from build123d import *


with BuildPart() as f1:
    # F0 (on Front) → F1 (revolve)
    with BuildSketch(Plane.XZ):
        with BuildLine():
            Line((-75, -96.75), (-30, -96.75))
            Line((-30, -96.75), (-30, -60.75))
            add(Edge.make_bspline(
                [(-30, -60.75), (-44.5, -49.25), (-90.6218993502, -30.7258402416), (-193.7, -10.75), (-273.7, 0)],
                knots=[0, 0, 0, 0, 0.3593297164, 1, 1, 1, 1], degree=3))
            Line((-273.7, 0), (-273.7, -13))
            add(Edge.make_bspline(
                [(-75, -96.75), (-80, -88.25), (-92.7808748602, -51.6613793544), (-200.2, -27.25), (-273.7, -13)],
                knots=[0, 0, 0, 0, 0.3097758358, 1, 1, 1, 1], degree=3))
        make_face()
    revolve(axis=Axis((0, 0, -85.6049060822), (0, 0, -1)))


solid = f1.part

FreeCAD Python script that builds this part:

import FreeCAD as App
import Part
import Sketcher

doc = App.newDocument("Part")
body = doc.addObject("PartDesign::Body", "Body")

sketch1 = body.newObject("Sketcher::SketchObject", "Sketch")
sketch1.AttachmentSupport = (doc.getObject("XZ_Plane"), [""])
sketch1.MapMode = "FlatFace"
sketch1.addGeometry(Part.LineSegment(App.Vector(-75, -96.75, 0), App.Vector(-30, -96.75, 0)), False)
sketch1.addGeometry(Part.LineSegment(App.Vector(-30, -96.75, 0), App.Vector(-30, -60.75, 0)), False)
sketch1.addGeometry(Part.BSplineCurve([App.Vector(-30, -60.75, 0), App.Vector(-44.5, -49.25, 0), App.Vector(-90.621899, -30.72584, 0), App.Vector(-193.7, -10.75, 0), App.Vector(-273.7, 0, 0)], [4, 1, 4], [0, 0.359329716, 1], False, 3, [1, 1, 1, 1, 1], False), False)
sketch1.addGeometry(Part.LineSegment(App.Vector(-273.7, 0, 0), App.Vector(-273.7, -13, 0)), False)
sketch1.addGeometry(Part.BSplineCurve([App.Vector(-75, -96.75, 0), App.Vector(-80, -88.25, 0), App.Vector(-92.780875, -51.661379, 0), App.Vector(-200.2, -27.25, 0), App.Vector(-273.7, -13, 0)], [4, 1, 4], [0, 0.309775836, 1], False, 3, [1, 1, 1, 1, 1], False), False)
sketch1.addConstraint(Sketcher.Constraint("Block", 2))
sketch1.addConstraint(Sketcher.Constraint("Block", 4))
sketch1.addConstraint(Sketcher.Constraint("Coincident", 0, 2, 1, 1))
sketch1.addConstraint(Sketcher.Constraint("Coincident", 1, 2, 2, 1))
sketch1.addConstraint(Sketcher.Constraint("Coincident", 2, 2, 3, 1))
sketch1.addConstraint(Sketcher.Constraint("Coincident", 3, 2, 4, 2))
sketch1.addConstraint(Sketcher.Constraint("Coincident", 4, 1, 0, 1))
sketch1.addConstraint(Sketcher.Constraint("Horizontal", 0))
sketch1.addConstraint(Sketcher.Constraint("Vertical", 1))
revolution = body.newObject("PartDesign::Revolution", "Revolution")
revolution.Profile = sketch1
revolution.ReferenceAxis = (sketch1, ["V_Axis"])
revolution.Angle = 360

doc.recompute()
